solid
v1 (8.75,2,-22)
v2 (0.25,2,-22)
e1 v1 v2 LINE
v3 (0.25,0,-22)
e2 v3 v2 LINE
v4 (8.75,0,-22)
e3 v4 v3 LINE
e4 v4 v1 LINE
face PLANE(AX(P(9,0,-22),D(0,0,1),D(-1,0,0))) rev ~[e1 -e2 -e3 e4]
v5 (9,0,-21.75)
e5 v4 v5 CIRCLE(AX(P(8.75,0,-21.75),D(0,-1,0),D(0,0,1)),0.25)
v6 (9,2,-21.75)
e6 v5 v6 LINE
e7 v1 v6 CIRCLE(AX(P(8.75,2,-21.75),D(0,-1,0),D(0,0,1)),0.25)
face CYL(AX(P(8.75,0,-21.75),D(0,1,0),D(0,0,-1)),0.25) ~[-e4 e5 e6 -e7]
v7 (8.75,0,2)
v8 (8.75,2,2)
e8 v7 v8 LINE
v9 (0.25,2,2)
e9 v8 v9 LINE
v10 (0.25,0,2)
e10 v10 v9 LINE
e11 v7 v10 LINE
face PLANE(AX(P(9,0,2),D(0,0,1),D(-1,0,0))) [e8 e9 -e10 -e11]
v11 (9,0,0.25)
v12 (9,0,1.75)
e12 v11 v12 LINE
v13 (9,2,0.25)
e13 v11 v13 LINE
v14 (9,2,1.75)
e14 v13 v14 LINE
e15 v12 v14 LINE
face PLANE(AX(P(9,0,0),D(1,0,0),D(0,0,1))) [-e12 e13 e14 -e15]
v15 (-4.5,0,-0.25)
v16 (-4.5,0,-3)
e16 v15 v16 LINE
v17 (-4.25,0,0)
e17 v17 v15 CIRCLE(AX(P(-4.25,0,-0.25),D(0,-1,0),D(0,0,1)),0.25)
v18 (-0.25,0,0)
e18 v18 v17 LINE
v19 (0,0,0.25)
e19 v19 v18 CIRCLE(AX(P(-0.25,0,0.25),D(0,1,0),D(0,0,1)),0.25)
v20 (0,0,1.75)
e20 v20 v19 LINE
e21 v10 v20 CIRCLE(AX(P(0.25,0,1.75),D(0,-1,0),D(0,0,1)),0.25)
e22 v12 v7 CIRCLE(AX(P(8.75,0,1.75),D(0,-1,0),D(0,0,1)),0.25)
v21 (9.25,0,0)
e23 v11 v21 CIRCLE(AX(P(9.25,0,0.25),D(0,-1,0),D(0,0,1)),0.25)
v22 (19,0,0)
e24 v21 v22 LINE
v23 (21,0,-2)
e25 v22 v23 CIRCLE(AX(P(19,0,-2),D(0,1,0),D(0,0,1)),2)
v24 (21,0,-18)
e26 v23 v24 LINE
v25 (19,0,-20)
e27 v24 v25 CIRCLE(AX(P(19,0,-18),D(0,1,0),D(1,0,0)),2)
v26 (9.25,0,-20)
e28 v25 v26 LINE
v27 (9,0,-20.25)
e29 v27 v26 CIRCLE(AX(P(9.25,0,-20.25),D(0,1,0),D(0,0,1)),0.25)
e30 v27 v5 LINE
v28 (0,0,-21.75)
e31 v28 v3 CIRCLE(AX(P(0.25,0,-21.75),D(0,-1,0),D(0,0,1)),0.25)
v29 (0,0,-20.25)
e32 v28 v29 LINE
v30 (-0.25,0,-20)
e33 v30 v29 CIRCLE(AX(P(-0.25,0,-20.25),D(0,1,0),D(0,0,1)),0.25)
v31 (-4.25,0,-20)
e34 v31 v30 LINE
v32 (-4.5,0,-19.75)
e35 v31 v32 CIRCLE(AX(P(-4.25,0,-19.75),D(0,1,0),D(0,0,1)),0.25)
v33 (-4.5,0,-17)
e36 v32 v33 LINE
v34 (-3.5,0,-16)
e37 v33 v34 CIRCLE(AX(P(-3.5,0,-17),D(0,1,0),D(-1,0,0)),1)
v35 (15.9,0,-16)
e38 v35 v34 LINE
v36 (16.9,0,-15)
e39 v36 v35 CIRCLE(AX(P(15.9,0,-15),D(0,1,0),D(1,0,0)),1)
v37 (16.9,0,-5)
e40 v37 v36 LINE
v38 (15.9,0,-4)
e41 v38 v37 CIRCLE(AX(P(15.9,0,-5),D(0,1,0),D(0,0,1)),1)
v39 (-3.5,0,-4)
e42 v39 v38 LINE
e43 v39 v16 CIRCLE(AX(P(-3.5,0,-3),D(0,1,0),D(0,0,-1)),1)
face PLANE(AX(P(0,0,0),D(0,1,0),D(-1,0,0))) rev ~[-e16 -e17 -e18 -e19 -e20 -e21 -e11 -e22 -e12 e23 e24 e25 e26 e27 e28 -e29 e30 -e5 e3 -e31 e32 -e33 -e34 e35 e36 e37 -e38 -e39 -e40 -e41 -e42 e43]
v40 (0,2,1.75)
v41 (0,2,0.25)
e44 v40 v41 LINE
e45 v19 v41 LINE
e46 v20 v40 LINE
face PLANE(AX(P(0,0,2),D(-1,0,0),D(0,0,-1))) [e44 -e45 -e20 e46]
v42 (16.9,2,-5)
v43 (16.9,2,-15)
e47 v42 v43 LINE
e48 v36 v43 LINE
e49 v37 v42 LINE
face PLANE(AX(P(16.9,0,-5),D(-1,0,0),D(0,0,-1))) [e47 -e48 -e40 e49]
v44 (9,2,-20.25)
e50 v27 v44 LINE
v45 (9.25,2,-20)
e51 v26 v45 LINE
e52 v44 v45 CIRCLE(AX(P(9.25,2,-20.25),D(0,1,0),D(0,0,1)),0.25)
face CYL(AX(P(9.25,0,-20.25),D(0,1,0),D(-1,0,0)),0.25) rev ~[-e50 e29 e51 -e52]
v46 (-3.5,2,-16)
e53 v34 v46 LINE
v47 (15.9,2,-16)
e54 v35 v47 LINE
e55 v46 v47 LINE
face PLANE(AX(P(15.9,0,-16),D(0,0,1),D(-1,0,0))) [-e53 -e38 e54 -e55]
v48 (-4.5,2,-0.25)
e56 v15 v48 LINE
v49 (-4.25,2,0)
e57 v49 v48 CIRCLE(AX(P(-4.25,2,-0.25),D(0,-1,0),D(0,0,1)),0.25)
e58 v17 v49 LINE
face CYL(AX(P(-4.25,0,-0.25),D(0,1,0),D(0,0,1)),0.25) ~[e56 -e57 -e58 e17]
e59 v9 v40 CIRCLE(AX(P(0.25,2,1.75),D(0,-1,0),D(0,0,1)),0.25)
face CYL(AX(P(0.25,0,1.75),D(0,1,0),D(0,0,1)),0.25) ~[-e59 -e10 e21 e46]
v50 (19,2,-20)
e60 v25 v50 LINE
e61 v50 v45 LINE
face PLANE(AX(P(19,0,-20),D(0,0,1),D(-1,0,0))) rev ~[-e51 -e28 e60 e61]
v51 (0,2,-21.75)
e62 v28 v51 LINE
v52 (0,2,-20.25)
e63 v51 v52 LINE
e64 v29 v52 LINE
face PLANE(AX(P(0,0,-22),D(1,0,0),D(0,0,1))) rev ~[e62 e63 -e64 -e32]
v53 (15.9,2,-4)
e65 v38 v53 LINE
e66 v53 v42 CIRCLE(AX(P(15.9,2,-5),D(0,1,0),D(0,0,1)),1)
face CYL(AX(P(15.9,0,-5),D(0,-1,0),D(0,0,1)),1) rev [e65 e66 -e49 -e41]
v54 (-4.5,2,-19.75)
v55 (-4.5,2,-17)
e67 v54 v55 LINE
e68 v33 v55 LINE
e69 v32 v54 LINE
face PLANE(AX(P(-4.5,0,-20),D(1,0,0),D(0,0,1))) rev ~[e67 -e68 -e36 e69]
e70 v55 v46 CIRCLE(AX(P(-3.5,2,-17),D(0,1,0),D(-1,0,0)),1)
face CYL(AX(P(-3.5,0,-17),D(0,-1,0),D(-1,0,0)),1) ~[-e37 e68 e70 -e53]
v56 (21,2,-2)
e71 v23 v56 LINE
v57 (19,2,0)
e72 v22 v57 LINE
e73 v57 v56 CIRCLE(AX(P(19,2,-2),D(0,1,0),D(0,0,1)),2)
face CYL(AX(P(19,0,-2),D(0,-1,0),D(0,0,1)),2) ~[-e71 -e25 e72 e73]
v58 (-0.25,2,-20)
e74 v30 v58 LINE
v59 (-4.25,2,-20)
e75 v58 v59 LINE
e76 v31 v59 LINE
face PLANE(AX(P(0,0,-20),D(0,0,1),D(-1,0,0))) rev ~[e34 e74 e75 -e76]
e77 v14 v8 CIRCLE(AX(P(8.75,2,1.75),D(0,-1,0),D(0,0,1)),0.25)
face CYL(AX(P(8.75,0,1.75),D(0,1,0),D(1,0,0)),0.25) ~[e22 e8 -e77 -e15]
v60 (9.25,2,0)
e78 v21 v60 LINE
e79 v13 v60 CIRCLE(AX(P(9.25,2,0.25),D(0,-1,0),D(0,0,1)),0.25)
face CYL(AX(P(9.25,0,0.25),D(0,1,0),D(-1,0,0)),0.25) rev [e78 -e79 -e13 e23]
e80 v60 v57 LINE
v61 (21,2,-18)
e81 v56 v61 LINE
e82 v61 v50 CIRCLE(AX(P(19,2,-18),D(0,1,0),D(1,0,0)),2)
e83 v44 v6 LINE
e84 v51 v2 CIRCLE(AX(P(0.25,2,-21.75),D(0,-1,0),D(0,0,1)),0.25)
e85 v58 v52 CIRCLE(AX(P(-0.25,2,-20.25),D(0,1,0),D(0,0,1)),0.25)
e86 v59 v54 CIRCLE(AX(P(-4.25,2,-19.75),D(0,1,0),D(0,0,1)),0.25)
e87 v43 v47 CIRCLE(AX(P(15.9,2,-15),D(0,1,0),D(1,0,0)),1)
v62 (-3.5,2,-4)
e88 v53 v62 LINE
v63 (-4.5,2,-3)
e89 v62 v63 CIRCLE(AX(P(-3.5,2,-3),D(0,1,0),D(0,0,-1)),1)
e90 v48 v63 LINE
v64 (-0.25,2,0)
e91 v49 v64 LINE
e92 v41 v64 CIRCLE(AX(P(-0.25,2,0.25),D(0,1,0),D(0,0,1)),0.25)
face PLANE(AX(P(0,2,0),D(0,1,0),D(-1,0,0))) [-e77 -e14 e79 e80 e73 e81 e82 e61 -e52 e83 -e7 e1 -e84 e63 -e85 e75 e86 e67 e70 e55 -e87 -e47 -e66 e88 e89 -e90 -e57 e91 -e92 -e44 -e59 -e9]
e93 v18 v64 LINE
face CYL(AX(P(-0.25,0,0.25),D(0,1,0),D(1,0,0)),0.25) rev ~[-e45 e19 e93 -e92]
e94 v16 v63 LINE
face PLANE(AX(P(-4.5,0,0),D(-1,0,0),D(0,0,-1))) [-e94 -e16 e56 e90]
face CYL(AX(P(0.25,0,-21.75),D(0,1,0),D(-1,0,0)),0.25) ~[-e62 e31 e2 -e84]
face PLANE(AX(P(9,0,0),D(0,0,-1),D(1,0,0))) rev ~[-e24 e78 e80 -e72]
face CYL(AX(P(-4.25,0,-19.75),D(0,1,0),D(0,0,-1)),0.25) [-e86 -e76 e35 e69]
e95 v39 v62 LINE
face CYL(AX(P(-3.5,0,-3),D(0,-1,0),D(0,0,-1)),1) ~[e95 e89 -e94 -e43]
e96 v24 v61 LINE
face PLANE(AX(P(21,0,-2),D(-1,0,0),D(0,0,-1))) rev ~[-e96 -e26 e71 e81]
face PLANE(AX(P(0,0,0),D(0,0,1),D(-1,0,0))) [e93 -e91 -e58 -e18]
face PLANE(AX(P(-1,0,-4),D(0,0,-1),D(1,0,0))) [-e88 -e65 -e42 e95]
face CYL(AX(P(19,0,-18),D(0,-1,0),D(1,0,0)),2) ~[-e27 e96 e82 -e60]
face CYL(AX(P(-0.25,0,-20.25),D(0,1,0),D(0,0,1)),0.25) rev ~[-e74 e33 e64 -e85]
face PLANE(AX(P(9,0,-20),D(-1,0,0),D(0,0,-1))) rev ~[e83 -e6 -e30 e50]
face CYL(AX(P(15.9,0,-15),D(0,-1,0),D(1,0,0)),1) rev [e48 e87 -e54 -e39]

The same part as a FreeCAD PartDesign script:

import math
import FreeCAD as App
import Part
import Sketcher

V = App.Vector
Q = App.Units.Quantity


def edges_at(feature, points):
    """Names of the edges that pass closest to the given points."""
    edges = feature.Shape.Edges
    near = lambda p: min(range(len(edges)), key=lambda i: edges[i].distToShape(Part.Vertex(*p))[0])
    return sorted({f"Edge{near(p) + 1}" for p in points})

doc = App.newDocument("Part")
body = doc.addObject("PartDesign::Body", "Body")

sketch1 = body.newObject("Sketcher::SketchObject", "Sketch")
sketch1.AttachmentSupport = (doc.getObject("XZ_Plane"), [""])
sketch1.MapMode = "FlatFace"
sketch1.addGeometry([
    Part.LineSegment(V(9, 2, 0), V(9, 0, 0)),
    Part.LineSegment(V(9, 0, 0), V(19, 0, 0)),
    Part.ArcOfCircle(Part.Circle(V(19, -2, 0), V(0, 0, 1), 2), math.radians(0), math.radians(90)),
    Part.LineSegment(V(21, -2, 0), V(21, -18, 0)),
    Part.ArcOfCircle(Part.Circle(V(19, -18, 0), V(0, 0, 1), 2), math.radians(-90), math.radians(0)),
    Part.LineSegment(V(19, -20, 0), V(9, -20, 0)),
    Part.LineSegment(V(9, -20, 0), V(9, -22, 0)),
    Part.LineSegment(V(9, -22, 0), V(0, -22, 0)),
    Part.LineSegment(V(0, -22, 0), V(0, -20, 0)),
    Part.LineSegment(V(0, -20, 0), V(-4.5, -20, 0)),
    Part.LineSegment(V(-4.5, -20, 0), V(-4.5, -17, 0)),
    Part.ArcOfCircle(Part.Circle(V(-3.5, -17, 0), V(0, 0, 1), 1), math.radians(90), math.radians(180)),
    Part.LineSegment(V(-3.5, -16, 0), V(15.9, -16, 0)),
    Part.ArcOfCircle(Part.Circle(V(15.9, -15, 0), V(0, 0, 1), 1), math.radians(-90), math.radians(0)),
    Part.LineSegment(V(16.9, -15, 0), V(16.9, -5, 0)),
    Part.ArcOfCircle(Part.Circle(V(15.9, -5, 0), V(0, 0, 1), 1), math.radians(0), math.radians(90)),
    Part.LineSegment(V(15.9, -4, 0), V(-3.5, -4, 0)),
    Part.ArcOfCircle(Part.Circle(V(-3.5, -3, 0), V(0, 0, 1), 1), math.radians(180), math.radians(270)),
    Part.LineSegment(V(-4.5, -3, 0), V(-4.5, 0, 0)),
    Part.LineSegment(V(-4.5, 0, 0), V(0, 0, 0)),
    Part.LineSegment(V(0, 0, 0), V(0, 2, 0)),
    Part.LineSegment(V(0, 2, 0), V(9, 2, 0)),
], False)
sketch1.addConstraint([
    Sketcher.Constraint("Coincident", 0, 2, 1, 1),
    Sketcher.Constraint("Tangent", 1, 2, 2, 2),
    Sketcher.Constraint("Tangent", 2, 1, 3, 1),
    Sketcher.Constraint("Tangent", 3, 2, 4, 2),
    Sketcher.Constraint("Tangent", 4, 1, 5, 1),
    Sketcher.Constraint("Coincident", 5, 2, 6, 1),
    Sketcher.Constraint("Coincident", 6, 2, 7, 1),
    Sketcher.Constraint("Coincident", 7, 2, 8, 1),
    Sketcher.Constraint("Coincident", 8, 2, 9, 1),
    Sketcher.Constraint("Coincident", 9, 2, 10, 1),
    Sketcher.Constraint("Tangent", 10, 2, 11, 2),
    Sketcher.Constraint("Tangent", 11, 1, 12, 1),
    Sketcher.Constraint("Tangent", 12, 2, 13, 1),
    Sketcher.Constraint("Tangent", 13, 2, 14, 1),
    Sketcher.Constraint("Tangent", 14, 2, 15, 1),
    Sketcher.Constraint("Tangent", 15, 2, 16, 1),
    Sketcher.Constraint("Tangent", 16, 2, 17, 2),
    Sketcher.Constraint("Tangent", 17, 1, 18, 1),
    Sketcher.Constraint("Coincident", 18, 2, 19, 1),
    Sketcher.Constraint("Coincident", 19, 2, 20, 1),
    Sketcher.Constraint("Coincident", 20, 2, 21, 1),
    Sketcher.Constraint("Coincident", 21, 2, 0, 1),
    Sketcher.Constraint("Vertical", 0),
    Sketcher.Constraint("Horizontal", 1),
    Sketcher.Constraint("Vertical", 3),
    Sketcher.Constraint("Horizontal", 5),
    Sketcher.Constraint("Vertical", 6),
    Sketcher.Constraint("Horizontal", 7),
    Sketcher.Constraint("Vertical", 8),
    Sketcher.Constraint("Horizontal", 9),
    Sketcher.Constraint("Vertical", 10),
    Sketcher.Constraint("Horizontal", 12),
    Sketcher.Constraint("Vertical", 14),
    Sketcher.Constraint("Horizontal", 16),
    Sketcher.Constraint("Vertical", 18),
    Sketcher.Constraint("Horizontal", 19),
    Sketcher.Constraint("Vertical", 20),
    Sketcher.Constraint("Horizontal", 21),
    Sketcher.Constraint("Coincident", 19, 2, -1, 1),
    Sketcher.Constraint("Equal", 2, 4),
    Sketcher.Constraint("Equal", 11, 13),
    Sketcher.Constraint("Equal", 13, 15),
    Sketcher.Constraint("Equal", 15, 17),
    Sketcher.Constraint("PointOnObject", 0, 2, -1),
    Sketcher.Constraint("PointOnObject", 7, 2, -2),
    Sketcher.Constraint("Horizontal", 5, 2, 8, 2),
    Sketcher.Constraint("Vertical", 11, 3, 17, 3),
    Sketcher.Constraint("Vertical", 0, 2, 5, 2),
    Sketcher.Constraint("Equal", 0, 6),
    Sketcher.Constraint("Equal", 5, 14),
    Sketcher.Constraint("Equal", 10, 18),
    Sketcher.Constraint("Radius", 2, Q("2 mm")),
    Sketcher.Constraint("Radius", 11, Q("1 mm")),
    Sketcher.Constraint("DistanceX", 7, 2, 7, 1, Q("9 mm")),
    Sketcher.Constraint("DistanceY", 0, 2, 0, 1, Q("2 mm")),
    Sketcher.Constraint("DistanceY", 4, 1, -1, 1, Q("20 mm")),
    Sketcher.Constraint("DistanceY", 15, 2, -1, 1, Q("4 mm")),
    Sketcher.Constraint("DistanceX", 9, 2, 9, 1, Q("4.5 mm")),
    Sketcher.Constraint("DistanceX", 12, 1, 12, 2, Q("19.4 mm")),
])
pad1 = body.newObject("PartDesign::Pad", "Pad")
pad1.Profile = sketch1
pad1.Length = 2
pad1.Reversed = True
doc.recompute()

fillet = body.newObject("PartDesign::Fillet", "Fillet")
fillet.Base = (pad1, edges_at(pad1, [
    (9, 1, 0),
    (9, 1, 2),
    (0, 1, 2),
    (0, 1, 0),
    (9, 1, -20),
    (9, 1, -22),
    (0, 1, -22),
    (0, 1, -20),
    (-4.5, 1, 0),
    (-4.5, 1, -20),
]))
fillet.Radius = 0.25

doc.recompute()
